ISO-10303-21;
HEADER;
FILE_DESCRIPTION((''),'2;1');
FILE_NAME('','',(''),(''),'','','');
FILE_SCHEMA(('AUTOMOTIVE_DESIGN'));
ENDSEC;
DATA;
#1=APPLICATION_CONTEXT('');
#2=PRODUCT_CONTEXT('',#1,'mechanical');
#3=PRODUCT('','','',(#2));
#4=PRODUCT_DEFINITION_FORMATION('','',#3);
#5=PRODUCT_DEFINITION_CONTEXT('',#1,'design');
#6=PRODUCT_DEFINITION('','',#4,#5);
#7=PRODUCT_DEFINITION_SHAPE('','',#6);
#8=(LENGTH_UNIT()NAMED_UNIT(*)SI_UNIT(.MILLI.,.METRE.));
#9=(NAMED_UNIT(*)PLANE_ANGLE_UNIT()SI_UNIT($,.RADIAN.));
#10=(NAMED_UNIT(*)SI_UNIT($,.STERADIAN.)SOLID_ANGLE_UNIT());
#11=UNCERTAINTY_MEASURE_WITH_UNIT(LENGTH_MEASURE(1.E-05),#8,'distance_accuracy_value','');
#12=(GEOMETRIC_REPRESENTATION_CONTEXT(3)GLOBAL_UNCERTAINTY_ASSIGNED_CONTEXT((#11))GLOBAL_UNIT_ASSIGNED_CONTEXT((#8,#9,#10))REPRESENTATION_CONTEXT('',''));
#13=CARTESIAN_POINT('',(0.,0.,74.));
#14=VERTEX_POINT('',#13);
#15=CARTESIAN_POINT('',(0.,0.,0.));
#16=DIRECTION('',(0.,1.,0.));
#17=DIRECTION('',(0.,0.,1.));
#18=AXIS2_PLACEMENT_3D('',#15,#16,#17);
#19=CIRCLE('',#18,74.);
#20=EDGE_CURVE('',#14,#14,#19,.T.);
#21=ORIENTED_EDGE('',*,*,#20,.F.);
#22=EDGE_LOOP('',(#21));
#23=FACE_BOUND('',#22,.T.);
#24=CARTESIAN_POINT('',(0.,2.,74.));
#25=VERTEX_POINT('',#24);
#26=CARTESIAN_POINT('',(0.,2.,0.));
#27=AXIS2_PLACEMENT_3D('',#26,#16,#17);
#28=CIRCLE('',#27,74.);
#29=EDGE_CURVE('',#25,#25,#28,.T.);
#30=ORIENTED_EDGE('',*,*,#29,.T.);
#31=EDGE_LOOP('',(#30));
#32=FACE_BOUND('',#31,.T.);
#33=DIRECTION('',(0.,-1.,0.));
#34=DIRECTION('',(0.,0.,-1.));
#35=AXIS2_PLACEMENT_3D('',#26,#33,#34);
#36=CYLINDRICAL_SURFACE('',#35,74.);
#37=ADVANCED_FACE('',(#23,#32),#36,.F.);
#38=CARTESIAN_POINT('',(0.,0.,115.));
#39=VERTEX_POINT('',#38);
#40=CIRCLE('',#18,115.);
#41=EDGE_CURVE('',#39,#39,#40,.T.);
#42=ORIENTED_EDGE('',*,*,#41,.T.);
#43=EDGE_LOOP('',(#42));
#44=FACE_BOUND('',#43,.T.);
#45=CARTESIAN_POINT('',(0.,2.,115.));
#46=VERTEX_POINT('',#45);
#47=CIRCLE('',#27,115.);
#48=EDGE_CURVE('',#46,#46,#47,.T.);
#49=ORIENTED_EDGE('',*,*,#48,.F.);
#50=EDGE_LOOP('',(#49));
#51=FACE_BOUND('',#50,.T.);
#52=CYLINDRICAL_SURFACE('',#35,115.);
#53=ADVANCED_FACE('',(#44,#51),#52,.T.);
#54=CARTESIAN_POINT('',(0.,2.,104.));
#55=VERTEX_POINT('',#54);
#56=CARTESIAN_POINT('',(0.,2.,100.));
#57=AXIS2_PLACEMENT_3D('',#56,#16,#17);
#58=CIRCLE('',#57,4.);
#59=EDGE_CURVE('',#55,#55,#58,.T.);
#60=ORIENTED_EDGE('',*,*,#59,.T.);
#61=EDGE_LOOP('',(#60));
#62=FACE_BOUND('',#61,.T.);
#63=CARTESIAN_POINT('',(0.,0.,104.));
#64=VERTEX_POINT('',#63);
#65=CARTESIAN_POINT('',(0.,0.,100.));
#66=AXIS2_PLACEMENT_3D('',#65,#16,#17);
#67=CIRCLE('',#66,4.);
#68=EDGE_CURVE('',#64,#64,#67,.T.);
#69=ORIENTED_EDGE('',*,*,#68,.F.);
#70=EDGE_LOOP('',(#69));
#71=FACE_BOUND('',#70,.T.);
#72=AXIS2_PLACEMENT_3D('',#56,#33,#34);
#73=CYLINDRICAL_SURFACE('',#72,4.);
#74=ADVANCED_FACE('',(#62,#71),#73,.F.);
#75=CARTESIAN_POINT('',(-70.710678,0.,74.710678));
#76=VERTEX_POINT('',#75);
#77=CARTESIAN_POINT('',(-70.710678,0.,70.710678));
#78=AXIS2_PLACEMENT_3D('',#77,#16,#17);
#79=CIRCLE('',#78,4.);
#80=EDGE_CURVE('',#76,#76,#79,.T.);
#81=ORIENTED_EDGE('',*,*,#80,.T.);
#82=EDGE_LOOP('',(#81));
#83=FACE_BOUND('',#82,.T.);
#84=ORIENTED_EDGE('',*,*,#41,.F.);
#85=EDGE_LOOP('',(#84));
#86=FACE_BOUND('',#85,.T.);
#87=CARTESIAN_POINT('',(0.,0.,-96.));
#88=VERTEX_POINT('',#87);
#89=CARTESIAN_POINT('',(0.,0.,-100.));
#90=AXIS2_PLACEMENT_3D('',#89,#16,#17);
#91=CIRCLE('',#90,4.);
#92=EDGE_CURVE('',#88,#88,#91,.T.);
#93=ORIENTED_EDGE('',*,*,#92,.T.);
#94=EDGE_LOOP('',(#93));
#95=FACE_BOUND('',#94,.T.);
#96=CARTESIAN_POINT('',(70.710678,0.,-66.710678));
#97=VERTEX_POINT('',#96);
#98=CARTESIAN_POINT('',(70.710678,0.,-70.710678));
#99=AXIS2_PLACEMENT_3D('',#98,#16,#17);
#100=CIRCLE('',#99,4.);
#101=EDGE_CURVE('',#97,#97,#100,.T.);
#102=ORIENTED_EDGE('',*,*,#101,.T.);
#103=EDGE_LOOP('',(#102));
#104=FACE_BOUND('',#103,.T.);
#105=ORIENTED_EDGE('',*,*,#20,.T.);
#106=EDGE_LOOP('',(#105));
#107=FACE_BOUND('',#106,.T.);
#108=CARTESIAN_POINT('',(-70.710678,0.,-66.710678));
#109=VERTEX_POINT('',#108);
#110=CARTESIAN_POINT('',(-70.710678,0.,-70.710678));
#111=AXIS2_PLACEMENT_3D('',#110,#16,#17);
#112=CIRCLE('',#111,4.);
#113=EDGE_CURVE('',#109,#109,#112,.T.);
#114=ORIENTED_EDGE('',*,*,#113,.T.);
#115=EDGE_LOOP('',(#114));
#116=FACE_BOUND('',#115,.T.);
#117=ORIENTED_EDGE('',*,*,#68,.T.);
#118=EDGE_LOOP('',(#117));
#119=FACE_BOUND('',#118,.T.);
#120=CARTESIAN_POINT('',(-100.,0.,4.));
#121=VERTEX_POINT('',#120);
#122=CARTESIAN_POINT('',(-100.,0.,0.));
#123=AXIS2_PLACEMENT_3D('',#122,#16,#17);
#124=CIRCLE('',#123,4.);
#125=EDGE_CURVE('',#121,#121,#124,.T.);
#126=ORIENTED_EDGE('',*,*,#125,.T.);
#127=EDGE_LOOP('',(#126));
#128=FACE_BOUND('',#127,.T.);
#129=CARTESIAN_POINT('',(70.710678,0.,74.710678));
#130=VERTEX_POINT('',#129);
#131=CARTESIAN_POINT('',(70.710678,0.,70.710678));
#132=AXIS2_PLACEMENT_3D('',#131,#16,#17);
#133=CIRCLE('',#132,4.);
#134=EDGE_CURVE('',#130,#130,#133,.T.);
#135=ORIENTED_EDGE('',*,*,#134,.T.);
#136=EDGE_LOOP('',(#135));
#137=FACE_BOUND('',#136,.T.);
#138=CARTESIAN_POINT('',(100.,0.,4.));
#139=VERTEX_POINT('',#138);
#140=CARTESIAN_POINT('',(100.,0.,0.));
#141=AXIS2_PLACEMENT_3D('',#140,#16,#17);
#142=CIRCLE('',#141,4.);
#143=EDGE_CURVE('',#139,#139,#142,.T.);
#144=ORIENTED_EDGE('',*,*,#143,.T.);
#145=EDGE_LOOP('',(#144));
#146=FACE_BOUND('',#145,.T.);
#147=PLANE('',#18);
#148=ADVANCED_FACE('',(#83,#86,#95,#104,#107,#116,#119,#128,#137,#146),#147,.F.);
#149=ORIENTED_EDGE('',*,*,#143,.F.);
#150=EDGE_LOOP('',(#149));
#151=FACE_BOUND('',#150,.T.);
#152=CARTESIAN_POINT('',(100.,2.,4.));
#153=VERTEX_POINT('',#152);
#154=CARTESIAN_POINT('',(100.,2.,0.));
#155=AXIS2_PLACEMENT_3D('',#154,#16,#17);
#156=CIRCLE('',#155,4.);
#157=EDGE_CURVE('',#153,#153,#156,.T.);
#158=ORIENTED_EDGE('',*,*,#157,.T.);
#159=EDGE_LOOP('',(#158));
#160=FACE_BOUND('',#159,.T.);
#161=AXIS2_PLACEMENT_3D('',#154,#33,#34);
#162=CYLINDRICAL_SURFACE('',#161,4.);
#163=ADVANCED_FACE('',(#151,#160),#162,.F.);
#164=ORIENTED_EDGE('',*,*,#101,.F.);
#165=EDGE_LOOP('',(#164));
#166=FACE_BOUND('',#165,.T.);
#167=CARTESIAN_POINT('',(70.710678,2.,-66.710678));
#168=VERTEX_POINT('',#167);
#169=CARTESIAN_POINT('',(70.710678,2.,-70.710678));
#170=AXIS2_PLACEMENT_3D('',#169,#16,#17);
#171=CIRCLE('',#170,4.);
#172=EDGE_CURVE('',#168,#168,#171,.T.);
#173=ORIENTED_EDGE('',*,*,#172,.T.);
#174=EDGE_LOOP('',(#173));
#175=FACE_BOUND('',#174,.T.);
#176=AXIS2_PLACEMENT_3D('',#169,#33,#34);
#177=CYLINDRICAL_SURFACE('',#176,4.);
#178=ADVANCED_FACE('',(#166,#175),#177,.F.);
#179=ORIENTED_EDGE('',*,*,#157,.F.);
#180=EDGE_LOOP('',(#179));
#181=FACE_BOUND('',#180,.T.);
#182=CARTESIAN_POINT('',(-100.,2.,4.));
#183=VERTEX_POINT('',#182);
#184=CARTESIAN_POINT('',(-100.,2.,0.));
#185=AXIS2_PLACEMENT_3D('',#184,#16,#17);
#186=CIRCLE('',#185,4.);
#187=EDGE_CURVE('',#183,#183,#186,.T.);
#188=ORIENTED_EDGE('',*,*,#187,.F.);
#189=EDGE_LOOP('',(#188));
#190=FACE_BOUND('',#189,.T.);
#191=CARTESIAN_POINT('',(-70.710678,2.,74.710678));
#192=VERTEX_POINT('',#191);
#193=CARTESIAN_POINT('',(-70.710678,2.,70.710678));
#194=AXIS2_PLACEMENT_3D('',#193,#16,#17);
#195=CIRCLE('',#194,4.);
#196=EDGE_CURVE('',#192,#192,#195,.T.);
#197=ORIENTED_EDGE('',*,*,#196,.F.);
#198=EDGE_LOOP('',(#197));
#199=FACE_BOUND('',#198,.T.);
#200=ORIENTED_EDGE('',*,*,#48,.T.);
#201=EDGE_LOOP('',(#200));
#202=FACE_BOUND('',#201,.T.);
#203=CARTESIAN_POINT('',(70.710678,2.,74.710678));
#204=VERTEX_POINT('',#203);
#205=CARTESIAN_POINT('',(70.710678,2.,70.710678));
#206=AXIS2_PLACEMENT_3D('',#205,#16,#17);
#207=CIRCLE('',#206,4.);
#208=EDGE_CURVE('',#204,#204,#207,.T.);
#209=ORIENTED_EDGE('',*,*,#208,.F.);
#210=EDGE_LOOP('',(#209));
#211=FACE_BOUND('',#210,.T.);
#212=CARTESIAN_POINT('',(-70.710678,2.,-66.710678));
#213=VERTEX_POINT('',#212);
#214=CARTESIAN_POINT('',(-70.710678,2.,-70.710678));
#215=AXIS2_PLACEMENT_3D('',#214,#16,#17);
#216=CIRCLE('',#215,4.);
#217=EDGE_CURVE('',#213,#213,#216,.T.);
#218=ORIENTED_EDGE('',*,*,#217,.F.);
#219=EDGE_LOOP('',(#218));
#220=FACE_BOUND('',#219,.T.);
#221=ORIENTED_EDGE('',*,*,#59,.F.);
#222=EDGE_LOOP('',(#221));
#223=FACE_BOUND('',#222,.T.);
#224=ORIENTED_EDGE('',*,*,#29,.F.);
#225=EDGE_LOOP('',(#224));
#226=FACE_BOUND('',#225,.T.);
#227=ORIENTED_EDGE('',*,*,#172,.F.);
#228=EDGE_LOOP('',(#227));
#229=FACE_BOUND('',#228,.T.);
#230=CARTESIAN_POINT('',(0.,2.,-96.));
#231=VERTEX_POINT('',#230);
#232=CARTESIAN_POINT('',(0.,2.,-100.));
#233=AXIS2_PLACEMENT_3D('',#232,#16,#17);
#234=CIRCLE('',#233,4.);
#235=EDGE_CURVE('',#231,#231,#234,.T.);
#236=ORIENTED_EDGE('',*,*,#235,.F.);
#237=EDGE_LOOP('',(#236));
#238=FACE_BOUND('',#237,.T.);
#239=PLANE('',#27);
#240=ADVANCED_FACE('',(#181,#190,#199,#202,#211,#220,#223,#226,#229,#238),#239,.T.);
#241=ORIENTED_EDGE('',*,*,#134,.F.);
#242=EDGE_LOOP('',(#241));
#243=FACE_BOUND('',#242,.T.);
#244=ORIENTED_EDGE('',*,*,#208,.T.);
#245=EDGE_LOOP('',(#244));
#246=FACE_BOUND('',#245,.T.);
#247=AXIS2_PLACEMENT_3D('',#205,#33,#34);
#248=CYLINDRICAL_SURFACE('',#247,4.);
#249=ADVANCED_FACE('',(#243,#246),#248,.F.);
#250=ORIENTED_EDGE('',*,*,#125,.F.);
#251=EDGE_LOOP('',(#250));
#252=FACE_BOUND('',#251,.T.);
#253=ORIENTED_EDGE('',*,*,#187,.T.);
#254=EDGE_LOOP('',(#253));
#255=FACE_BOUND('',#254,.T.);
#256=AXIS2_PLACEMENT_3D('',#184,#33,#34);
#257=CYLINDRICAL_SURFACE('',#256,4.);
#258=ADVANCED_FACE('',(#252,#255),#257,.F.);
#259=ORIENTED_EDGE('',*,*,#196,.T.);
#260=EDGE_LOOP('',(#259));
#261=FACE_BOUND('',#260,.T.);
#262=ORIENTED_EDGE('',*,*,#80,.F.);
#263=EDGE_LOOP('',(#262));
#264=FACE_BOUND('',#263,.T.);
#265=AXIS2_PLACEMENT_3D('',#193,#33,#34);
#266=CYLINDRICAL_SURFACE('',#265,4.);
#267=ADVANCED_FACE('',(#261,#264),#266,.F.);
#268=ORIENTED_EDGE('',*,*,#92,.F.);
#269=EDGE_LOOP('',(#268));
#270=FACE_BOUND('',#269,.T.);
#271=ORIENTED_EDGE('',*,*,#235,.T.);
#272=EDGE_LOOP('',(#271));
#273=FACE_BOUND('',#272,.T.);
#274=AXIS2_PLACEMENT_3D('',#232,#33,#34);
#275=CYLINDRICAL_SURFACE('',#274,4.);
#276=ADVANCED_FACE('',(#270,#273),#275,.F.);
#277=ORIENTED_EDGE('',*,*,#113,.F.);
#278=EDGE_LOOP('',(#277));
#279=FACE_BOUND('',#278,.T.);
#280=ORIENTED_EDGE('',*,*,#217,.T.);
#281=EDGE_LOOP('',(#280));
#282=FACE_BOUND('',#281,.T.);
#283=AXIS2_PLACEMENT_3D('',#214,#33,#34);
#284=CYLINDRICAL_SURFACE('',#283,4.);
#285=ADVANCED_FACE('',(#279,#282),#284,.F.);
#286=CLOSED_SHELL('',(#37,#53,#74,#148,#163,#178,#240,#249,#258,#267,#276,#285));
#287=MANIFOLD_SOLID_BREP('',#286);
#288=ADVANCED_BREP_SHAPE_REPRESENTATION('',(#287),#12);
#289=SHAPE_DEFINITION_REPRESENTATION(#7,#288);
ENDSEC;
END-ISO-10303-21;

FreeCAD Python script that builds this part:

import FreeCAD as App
import Part
import Sketcher

V = App.Vector
Q = App.Units.Quantity

doc = App.newDocument("Part")
body = doc.addObject("PartDesign::Body", "Body")

# Sketch on XZ plane
sketch1 = doc.addObject("Sketcher::SketchObject", "Sketch")
body.addObject(sketch1)
sketch1.AttachmentSupport = (doc.XZ_Plane, [""])
sketch1.MapMode = "FlatFace"
sketch1.addGeometry(Part.Circle(V(0, 0, 0), V(0, 0, 1), 115), False)
sketch1.addGeometry(Part.Circle(V(-70.7, -70.7, 0), V(0, 0, 1), 4), False)
sketch1.addGeometry(Part.Circle(V(0, -100, 0), V(0, 0, 1), 4), False)
sketch1.addGeometry(Part.Circle(V(-100, 0, 0), V(0, 0, 1), 4), False)
sketch1.addGeometry(Part.Circle(V(-70.7, 70.7, 0), V(0, 0, 1), 4), False)
sketch1.addGeometry(Part.Circle(V(70.7, -70.7, 0), V(0, 0, 1), 4), False)
sketch1.addGeometry(Part.Circle(V(100, 0, 0), V(0, 0, 1), 4), False)
sketch1.addGeometry(Part.Circle(V(0, 0, 0), V(0, 0, 1), 74), False)
sketch1.addGeometry(Part.Circle(V(0, 100, 0), V(0, 0, 1), 4), False)
sketch1.addGeometry(Part.Circle(V(70.7, 70.7, 0), V(0, 0, 1), 4), False)
sketch1.addConstraint(Sketcher.Constraint("Coincident", 0, 3, -1, 1))
sketch1.addConstraint(Sketcher.Constraint("Coincident", 7, 3, -1, 1))
sketch1.addConstraint(Sketcher.Constraint("Equal", 1, 2))
sketch1.addConstraint(Sketcher.Constraint("Equal", 2, 3))
sketch1.addConstraint(Sketcher.Constraint("Equal", 3, 4))
sketch1.addConstraint(Sketcher.Constraint("Equal", 4, 5))
sketch1.addConstraint(Sketcher.Constraint("Equal", 5, 6))
sketch1.addConstraint(Sketcher.Constraint("Equal", 6, 8))
sketch1.addConstraint(Sketcher.Constraint("Equal", 8, 9))
sketch1.addConstraint(Sketcher.Constraint("Symmetric", 4, 3, 5, 3, -1, 1))
sketch1.addConstraint(Sketcher.Constraint("Symmetric", 3, 3, 6, 3, -1, 1))
sketch1.addConstraint(Sketcher.Constraint("Symmetric", 2, 3, 8, 3, -1, 1))
sketch1.addConstraint(Sketcher.Constraint("Symmetric", 1, 3, 9, 3, -1, 1))
sketch1.addConstraint(Sketcher.Constraint("Symmetric", 1, 3, 5, 3, -2))
sketch1.addConstraint(Sketcher.Constraint("PointOnObject", 2, 3, -2))
sketch1.addConstraint(Sketcher.Constraint("PointOnObject", 3, 3, -1))
sketch1.addConstraint(Sketcher.Constraint("Diameter", 0, Q("230 mm")))
sketch1.addConstraint(Sketcher.Constraint("Diameter", 1, Q("8 mm")))
sketch1.addConstraint(Sketcher.Constraint("Diameter", 7, Q("148 mm")))
sketch1.addConstraint(Sketcher.Constraint("DistanceY", 2, 3, -1, 1, Q("100 mm")))
sketch1.addConstraint(Sketcher.Constraint("DistanceX", 3, 3, -1, 1, Q("100 mm")))
sketch1.addConstraint(Sketcher.Constraint("DistanceX", 1, 3, -1, 1, Q("70.710678 mm")))
sketch1.addConstraint(Sketcher.Constraint("DistanceY", 1, 3, -1, 1, Q("70.710678 mm")))
pad1 = doc.addObject("PartDesign::Pad", "Pad")
body.addObject(pad1)
pad1.Profile = sketch1
pad1.Length = 2
pad1.Reversed = True

doc.recompute()
